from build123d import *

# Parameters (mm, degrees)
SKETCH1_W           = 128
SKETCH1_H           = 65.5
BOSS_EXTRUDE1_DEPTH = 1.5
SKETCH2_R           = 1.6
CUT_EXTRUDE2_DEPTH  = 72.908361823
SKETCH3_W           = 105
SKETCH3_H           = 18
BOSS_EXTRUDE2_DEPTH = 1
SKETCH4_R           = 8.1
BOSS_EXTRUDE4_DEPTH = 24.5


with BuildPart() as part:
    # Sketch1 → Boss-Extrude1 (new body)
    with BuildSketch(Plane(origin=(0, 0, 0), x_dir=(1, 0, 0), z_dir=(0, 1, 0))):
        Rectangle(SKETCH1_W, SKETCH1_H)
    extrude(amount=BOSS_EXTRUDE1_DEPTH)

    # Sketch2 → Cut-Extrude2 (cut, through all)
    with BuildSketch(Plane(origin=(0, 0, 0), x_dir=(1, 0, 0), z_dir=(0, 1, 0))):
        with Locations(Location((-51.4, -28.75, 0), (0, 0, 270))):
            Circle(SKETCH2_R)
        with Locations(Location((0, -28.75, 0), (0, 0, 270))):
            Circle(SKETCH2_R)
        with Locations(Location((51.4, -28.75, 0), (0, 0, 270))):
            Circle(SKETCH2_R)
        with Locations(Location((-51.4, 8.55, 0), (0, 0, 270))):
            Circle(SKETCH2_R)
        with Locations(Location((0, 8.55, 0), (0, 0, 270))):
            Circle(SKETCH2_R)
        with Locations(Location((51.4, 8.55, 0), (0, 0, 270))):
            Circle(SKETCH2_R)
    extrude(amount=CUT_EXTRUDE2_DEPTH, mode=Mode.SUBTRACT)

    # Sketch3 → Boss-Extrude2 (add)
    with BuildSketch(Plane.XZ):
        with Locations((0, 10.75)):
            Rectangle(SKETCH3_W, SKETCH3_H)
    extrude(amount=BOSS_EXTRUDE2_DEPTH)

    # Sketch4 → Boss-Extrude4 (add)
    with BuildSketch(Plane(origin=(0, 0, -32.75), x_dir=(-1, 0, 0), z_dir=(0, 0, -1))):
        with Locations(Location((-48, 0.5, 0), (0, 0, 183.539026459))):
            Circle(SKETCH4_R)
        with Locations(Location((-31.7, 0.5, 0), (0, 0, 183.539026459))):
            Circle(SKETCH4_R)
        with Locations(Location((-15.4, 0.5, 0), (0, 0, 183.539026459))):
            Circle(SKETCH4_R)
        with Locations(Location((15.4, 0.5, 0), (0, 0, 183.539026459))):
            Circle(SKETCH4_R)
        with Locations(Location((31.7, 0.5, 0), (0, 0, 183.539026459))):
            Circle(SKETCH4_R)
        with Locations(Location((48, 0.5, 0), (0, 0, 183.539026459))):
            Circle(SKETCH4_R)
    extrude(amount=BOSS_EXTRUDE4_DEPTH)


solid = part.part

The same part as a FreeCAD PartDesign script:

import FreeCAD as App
import Part
import Sketcher
from FreeCAD import Vector
Q = App.Units.Quantity


def add_polygon(sketch, points):
    """Adds a closed chain of lines whose ends are joined by coincident constraints."""
    first, n = sketch.GeometryCount, len(points)
    for a, b in zip(points, points[1:] + points[:1]):
        sketch.addGeometry(Part.LineSegment(App.Vector(*a, 0), App.Vector(*b, 0)), False)
    for i in range(n):
        sketch.addConstraint(Sketcher.Constraint("Coincident", first + i, 2, first + (i + 1) % n, 1))

doc = App.newDocument("Part")
body = doc.addObject("PartDesign::Body", "Body")

# Sketch on XZ plane
sketch1 = body.newObject("Sketcher::SketchObject", "Sketch")
sketch1.AttachmentSupport = (doc.getObject("XZ_Plane"), [""])
sketch1.MapMode = "FlatFace"
add_polygon(sketch1, [(-64, -33), (-64, 33), (64, 33), (64, -33)])  # lines 0-3
sketch1.addConstraint(Sketcher.Constraint("Vertical", 0))
sketch1.addConstraint(Sketcher.Constraint("Horizontal", 1))
sketch1.addConstraint(Sketcher.Constraint("Vertical", 2))
sketch1.addConstraint(Sketcher.Constraint("Horizontal", 3))
sketch1.addConstraint(Sketcher.Constraint("Symmetric", 0, 2, 2, 2, -1, 1))
sketch1.addConstraint(Sketcher.Constraint("DistanceX", 1, 1, 1, 2, Q("128 mm")))
sketch1.addConstraint(Sketcher.Constraint("DistanceY", 0, 1, 0, 2, Q("65.5 mm")))
pad1 = body.newObject("PartDesign::Pad", "Pad")
pad1.Profile = sketch1
pad1.Length = 1.5
pad1.Reversed = True

# Sketch on XZ plane
sketch2 = body.newObject("Sketcher::SketchObject", "Sketch001")
sketch2.AttachmentSupport = (doc.getObject("XZ_Plane"), [""])
sketch2.MapMode = "FlatFace"
sketch2.addGeometry(Part.Circle(Vector(-51.4, 28.8, 0), Vector(0, 0, 1), 1.6), False)
sketch2.addGeometry(Part.Circle(Vector(0, 28.8, 0), Vector(0, 0, 1), 1.6), False)
sketch2.addGeometry(Part.Circle(Vector(51.4, 28.8, 0), Vector(0, 0, 1), 1.6), False)
sketch2.addGeometry(Part.Circle(Vector(-51.4, -8.6, 0), Vector(0, 0, 1), 1.6), False)
sketch2.addGeometry(Part.Circle(Vector(0, -8.6, 0), Vector(0, 0, 1), 1.6), False)
sketch2.addGeometry(Part.Circle(Vector(51.4, -8.6, 0), Vector(0, 0, 1), 1.6), False)
sketch2.addConstraint(Sketcher.Constraint("Equal", 0, 1))
sketch2.addConstraint(Sketcher.Constraint("Equal", 1, 2))
sketch2.addConstraint(Sketcher.Constraint("Equal", 2, 3))
sketch2.addConstraint(Sketcher.Constraint("Equal", 3, 4))
sketch2.addConstraint(Sketcher.Constraint("Equal", 4, 5))
sketch2.addConstraint(Sketcher.Constraint("Symmetric", 0, 3, 2, 3, -2))
sketch2.addConstraint(Sketcher.Constraint("Symmetric", 3, 3, 5, 3, -2))
sketch2.addConstraint(Sketcher.Constraint("PointOnObject", 1, 3, -2))
sketch2.addConstraint(Sketcher.Constraint("PointOnObject", 4, 3, -2))
sketch2.addConstraint(Sketcher.Constraint("Horizontal", 0, 3, 1, 3))
sketch2.addConstraint(Sketcher.Constraint("Horizontal", 3, 3, 4, 3))
sketch2.addConstraint(Sketcher.Constraint("Vertical", 0, 3, 3, 3))
sketch2.addConstraint(Sketcher.Constraint("Diameter", 0, Q("3.2 mm")))
sketch2.addConstraint(Sketcher.Constraint("DistanceX", 0, 3, -1, 1, Q("51.4 mm")))
sketch2.addConstraint(Sketcher.Constraint("DistanceY", 3, 3, 0, 3, Q("37.3 mm")))
sketch2.addConstraint(Sketcher.Constraint("DistanceY", -1, 1, 0, 3, Q("28.75 mm")))
pocket1 = body.newObject("PartDesign::Pocket", "Pocket")
pocket1.Profile = sketch2
pocket1.Type = "ThroughAll"

# Sketch on XZ plane
sketch3 = body.newObject("Sketcher::SketchObject", "Sketch002")
sketch3.AttachmentSupport = (doc.getObject("XZ_Plane"), [""])
sketch3.MapMode = "FlatFace"
add_polygon(sketch3, [(-52, 20), (-52, 2), (52, 2), (52, 20)])  # lines 0-3
sketch3.addConstraint(Sketcher.Constraint("Vertical", 0))
sketch3.addConstraint(Sketcher.Constraint("Horizontal", 1))
sketch3.addConstraint(Sketcher.Constraint("Vertical", 2))
sketch3.addConstraint(Sketcher.Constraint("Horizontal", 3))
sketch3.addConstraint(Sketcher.Constraint("DistanceX", 1, 1, 1, 2, Q("105 mm")))
sketch3.addConstraint(Sketcher.Constraint("DistanceY", 0, 2, 0, 1, Q("18 mm")))
sketch3.addConstraint(Sketcher.Constraint("DistanceX", 0, 2, -1, 1, Q("52.5 mm")))
sketch3.addConstraint(Sketcher.Constraint("DistanceY", -1, 1, 0, 2, Q("1.75 mm")))
pad2 = body.newObject("PartDesign::Pad", "Pad001")
pad2.Profile = sketch3
pad2.Length = 1

# Sketch on XY plane
sketch4 = body.newObject("Sketcher::SketchObject", "Sketch003")
sketch4.AttachmentSupport = (doc.getObject("XY_Plane"), [""])
sketch4.MapMode = "FlatFace"
sketch4.AttachmentOffset = App.Placement(Vector(0, 0, -32.75), App.Rotation())
sketch4.addGeometry(Part.Circle(Vector(48, 0, 0), Vector(0, 0, 1), 8), False)
sketch4.addGeometry(Part.Circle(Vector(32, 0, 0), Vector(0, 0, 1), 8), False)
sketch4.addGeometry(Part.Circle(Vector(15, 0, 0), Vector(0, 0, 1), 8), False)
sketch4.addGeometry(Part.Circle(Vector(-15, 0, 0), Vector(0, 0, 1), 8), False)
sketch4.addGeometry(Part.Circle(Vector(-32, 0, 0), Vector(0, 0, 1), 8), False)
sketch4.addGeometry(Part.Circle(Vector(-48, 0, 0), Vector(0, 0, 1), 8), False)
sketch4.addConstraint(Sketcher.Constraint("Equal", 0, 1))
sketch4.addConstraint(Sketcher.Constraint("Equal", 1, 2))
sketch4.addConstraint(Sketcher.Constraint("Equal", 2, 3))
sketch4.addConstraint(Sketcher.Constraint("Equal", 3, 4))
sketch4.addConstraint(Sketcher.Constraint("Equal", 4, 5))
sketch4.addConstraint(Sketcher.Constraint("Symmetric", 2, 3, 3, 3, -2))
sketch4.addConstraint(Sketcher.Constraint("Symmetric", 1, 3, 4, 3, -2))
sketch4.addConstraint(Sketcher.Constraint("Symmetric", 0, 3, 5, 3, -2))
sketch4.addConstraint(Sketcher.Constraint("Horizontal", 0, 3, 1, 3))
sketch4.addConstraint(Sketcher.Constraint("Horizontal", 1, 3, 2, 3))
sketch4.addConstraint(Sketcher.Constraint("Diameter", 0, Q("16.2 mm")))
sketch4.addConstraint(Sketcher.Constraint("DistanceX", -1, 1, 0, 3, Q("48 mm")))
sketch4.addConstraint(Sketcher.Constraint("DistanceY", -1, 1, 0, 3, Q("0.5 mm")))
sketch4.addConstraint(Sketcher.Constraint("DistanceX", -1, 1, 1, 3, Q("31.7 mm")))
sketch4.addConstraint(Sketcher.Constraint("DistanceX", -1, 1, 2, 3, Q("15.4 mm")))
pad3 = body.newObject("PartDesign::Pad", "Pad002")
pad3.Profile = sketch4
pad3.Length = 24.5
pad3.Reversed = True

doc.recompute()
